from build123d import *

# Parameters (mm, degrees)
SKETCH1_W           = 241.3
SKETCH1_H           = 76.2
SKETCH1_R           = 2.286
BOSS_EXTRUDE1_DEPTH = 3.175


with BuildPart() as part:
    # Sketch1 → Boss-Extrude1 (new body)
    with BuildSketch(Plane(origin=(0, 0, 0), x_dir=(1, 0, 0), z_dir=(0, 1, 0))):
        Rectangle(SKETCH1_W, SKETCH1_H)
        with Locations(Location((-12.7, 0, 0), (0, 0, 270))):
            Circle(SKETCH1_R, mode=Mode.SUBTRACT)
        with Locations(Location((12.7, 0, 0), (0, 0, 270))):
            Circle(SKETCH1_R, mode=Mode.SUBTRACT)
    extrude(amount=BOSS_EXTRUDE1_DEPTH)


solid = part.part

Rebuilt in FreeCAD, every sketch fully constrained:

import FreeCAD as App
import Part
import Sketcher
from FreeCAD import Vector
Q = App.Units.Quantity

doc = App.newDocument("Part")
params = doc.addObject("Spreadsheet::Sheet", "Params")
for row, (alias, value) in enumerate([
    ("sketch1_diameter", "0.18 in"),
    ("sketch1_height", "3 in"),
    ("sketch1_width", "9.5 in"),
    ("pad1_length", "0.125 in"),
], start=1):
    params.set(f"A{row}", alias)
    params.set(f"B{row}", "=" + value)
    params.setAlias(f"B{row}", alias)

body = doc.addObject("PartDesign::Body", "Body")

# Sketch on XZ plane
sketch1 = body.newObject("Sketcher::SketchObject", "Sketch")
sketch1.AttachmentSupport = (doc.getObject("XZ_Plane"), [""])
sketch1.MapMode = "FlatFace"
sketch1.addGeometry([
    Part.LineSegment(Vector(-120.7, -38.1, 0), Vector(-120.7, 38.1, 0)),  # 0
    Part.LineSegment(Vector(-120.7, 38.1, 0), Vector(120.7, 38.1, 0)),  # 1
    Part.LineSegment(Vector(120.7, 38.1, 0), Vector(120.7, -38.1, 0)),  # 2
    Part.LineSegment(Vector(120.7, -38.1, 0), Vector(-120.7, -38.1, 0)),  # 3
    Part.Circle(Vector(-12.7, 0, 0), Vector(0, 0, 1), 2.3),  # 4
    Part.Circle(Vector(12.7, 0, 0), Vector(0, 0, 1), 2.3),  # 5
], False)
sketch1.addConstraint([
    Sketcher.Constraint("Coincident", 0, 2, 1, 1),
    Sketcher.Constraint("Coincident", 1, 2, 2, 1),
    Sketcher.Constraint("Coincident", 2, 2, 3, 1),
    Sketcher.Constraint("Coincident", 3, 2, 0, 1),
    Sketcher.Constraint("Vertical", 0),
    Sketcher.Constraint("Horizontal", 1),
    Sketcher.Constraint("Vertical", 2),
    Sketcher.Constraint("Horizontal", 3),
    Sketcher.Constraint("Equal", 4, 5),
    Sketcher.Constraint("Symmetric", 4, 3, 5, 3, -1, 1),
    Sketcher.Constraint("Symmetric", 0, 2, 2, 2, -1, 1),
    Sketcher.Constraint("PointOnObject", 4, 3, -1),
    Sketcher.Constraint("Diameter", 4, Q("0.18 in")),
    Sketcher.Constraint("DistanceY", 0, 1, 0, 2, Q("3 in")),
    Sketcher.Constraint("DistanceX", 1, 1, 1, 2, Q("9.5 in")),
    Sketcher.Constraint("DistanceX", 4, 3, 5, 3, Q("1 in")),
])
sketch1.setExpression("Constraints[12]", "Params.sketch1_diameter")
sketch1.setExpression("Constraints[13]", "Params.sketch1_height")
sketch1.setExpression("Constraints[14]", "Params.sketch1_width")
pad1 = body.newObject("PartDesign::Pad", "Pad")
pad1.Profile = sketch1
pad1.setExpression("Length", "Params.pad1_length")
pad1.Reversed = True

doc.recompute()
